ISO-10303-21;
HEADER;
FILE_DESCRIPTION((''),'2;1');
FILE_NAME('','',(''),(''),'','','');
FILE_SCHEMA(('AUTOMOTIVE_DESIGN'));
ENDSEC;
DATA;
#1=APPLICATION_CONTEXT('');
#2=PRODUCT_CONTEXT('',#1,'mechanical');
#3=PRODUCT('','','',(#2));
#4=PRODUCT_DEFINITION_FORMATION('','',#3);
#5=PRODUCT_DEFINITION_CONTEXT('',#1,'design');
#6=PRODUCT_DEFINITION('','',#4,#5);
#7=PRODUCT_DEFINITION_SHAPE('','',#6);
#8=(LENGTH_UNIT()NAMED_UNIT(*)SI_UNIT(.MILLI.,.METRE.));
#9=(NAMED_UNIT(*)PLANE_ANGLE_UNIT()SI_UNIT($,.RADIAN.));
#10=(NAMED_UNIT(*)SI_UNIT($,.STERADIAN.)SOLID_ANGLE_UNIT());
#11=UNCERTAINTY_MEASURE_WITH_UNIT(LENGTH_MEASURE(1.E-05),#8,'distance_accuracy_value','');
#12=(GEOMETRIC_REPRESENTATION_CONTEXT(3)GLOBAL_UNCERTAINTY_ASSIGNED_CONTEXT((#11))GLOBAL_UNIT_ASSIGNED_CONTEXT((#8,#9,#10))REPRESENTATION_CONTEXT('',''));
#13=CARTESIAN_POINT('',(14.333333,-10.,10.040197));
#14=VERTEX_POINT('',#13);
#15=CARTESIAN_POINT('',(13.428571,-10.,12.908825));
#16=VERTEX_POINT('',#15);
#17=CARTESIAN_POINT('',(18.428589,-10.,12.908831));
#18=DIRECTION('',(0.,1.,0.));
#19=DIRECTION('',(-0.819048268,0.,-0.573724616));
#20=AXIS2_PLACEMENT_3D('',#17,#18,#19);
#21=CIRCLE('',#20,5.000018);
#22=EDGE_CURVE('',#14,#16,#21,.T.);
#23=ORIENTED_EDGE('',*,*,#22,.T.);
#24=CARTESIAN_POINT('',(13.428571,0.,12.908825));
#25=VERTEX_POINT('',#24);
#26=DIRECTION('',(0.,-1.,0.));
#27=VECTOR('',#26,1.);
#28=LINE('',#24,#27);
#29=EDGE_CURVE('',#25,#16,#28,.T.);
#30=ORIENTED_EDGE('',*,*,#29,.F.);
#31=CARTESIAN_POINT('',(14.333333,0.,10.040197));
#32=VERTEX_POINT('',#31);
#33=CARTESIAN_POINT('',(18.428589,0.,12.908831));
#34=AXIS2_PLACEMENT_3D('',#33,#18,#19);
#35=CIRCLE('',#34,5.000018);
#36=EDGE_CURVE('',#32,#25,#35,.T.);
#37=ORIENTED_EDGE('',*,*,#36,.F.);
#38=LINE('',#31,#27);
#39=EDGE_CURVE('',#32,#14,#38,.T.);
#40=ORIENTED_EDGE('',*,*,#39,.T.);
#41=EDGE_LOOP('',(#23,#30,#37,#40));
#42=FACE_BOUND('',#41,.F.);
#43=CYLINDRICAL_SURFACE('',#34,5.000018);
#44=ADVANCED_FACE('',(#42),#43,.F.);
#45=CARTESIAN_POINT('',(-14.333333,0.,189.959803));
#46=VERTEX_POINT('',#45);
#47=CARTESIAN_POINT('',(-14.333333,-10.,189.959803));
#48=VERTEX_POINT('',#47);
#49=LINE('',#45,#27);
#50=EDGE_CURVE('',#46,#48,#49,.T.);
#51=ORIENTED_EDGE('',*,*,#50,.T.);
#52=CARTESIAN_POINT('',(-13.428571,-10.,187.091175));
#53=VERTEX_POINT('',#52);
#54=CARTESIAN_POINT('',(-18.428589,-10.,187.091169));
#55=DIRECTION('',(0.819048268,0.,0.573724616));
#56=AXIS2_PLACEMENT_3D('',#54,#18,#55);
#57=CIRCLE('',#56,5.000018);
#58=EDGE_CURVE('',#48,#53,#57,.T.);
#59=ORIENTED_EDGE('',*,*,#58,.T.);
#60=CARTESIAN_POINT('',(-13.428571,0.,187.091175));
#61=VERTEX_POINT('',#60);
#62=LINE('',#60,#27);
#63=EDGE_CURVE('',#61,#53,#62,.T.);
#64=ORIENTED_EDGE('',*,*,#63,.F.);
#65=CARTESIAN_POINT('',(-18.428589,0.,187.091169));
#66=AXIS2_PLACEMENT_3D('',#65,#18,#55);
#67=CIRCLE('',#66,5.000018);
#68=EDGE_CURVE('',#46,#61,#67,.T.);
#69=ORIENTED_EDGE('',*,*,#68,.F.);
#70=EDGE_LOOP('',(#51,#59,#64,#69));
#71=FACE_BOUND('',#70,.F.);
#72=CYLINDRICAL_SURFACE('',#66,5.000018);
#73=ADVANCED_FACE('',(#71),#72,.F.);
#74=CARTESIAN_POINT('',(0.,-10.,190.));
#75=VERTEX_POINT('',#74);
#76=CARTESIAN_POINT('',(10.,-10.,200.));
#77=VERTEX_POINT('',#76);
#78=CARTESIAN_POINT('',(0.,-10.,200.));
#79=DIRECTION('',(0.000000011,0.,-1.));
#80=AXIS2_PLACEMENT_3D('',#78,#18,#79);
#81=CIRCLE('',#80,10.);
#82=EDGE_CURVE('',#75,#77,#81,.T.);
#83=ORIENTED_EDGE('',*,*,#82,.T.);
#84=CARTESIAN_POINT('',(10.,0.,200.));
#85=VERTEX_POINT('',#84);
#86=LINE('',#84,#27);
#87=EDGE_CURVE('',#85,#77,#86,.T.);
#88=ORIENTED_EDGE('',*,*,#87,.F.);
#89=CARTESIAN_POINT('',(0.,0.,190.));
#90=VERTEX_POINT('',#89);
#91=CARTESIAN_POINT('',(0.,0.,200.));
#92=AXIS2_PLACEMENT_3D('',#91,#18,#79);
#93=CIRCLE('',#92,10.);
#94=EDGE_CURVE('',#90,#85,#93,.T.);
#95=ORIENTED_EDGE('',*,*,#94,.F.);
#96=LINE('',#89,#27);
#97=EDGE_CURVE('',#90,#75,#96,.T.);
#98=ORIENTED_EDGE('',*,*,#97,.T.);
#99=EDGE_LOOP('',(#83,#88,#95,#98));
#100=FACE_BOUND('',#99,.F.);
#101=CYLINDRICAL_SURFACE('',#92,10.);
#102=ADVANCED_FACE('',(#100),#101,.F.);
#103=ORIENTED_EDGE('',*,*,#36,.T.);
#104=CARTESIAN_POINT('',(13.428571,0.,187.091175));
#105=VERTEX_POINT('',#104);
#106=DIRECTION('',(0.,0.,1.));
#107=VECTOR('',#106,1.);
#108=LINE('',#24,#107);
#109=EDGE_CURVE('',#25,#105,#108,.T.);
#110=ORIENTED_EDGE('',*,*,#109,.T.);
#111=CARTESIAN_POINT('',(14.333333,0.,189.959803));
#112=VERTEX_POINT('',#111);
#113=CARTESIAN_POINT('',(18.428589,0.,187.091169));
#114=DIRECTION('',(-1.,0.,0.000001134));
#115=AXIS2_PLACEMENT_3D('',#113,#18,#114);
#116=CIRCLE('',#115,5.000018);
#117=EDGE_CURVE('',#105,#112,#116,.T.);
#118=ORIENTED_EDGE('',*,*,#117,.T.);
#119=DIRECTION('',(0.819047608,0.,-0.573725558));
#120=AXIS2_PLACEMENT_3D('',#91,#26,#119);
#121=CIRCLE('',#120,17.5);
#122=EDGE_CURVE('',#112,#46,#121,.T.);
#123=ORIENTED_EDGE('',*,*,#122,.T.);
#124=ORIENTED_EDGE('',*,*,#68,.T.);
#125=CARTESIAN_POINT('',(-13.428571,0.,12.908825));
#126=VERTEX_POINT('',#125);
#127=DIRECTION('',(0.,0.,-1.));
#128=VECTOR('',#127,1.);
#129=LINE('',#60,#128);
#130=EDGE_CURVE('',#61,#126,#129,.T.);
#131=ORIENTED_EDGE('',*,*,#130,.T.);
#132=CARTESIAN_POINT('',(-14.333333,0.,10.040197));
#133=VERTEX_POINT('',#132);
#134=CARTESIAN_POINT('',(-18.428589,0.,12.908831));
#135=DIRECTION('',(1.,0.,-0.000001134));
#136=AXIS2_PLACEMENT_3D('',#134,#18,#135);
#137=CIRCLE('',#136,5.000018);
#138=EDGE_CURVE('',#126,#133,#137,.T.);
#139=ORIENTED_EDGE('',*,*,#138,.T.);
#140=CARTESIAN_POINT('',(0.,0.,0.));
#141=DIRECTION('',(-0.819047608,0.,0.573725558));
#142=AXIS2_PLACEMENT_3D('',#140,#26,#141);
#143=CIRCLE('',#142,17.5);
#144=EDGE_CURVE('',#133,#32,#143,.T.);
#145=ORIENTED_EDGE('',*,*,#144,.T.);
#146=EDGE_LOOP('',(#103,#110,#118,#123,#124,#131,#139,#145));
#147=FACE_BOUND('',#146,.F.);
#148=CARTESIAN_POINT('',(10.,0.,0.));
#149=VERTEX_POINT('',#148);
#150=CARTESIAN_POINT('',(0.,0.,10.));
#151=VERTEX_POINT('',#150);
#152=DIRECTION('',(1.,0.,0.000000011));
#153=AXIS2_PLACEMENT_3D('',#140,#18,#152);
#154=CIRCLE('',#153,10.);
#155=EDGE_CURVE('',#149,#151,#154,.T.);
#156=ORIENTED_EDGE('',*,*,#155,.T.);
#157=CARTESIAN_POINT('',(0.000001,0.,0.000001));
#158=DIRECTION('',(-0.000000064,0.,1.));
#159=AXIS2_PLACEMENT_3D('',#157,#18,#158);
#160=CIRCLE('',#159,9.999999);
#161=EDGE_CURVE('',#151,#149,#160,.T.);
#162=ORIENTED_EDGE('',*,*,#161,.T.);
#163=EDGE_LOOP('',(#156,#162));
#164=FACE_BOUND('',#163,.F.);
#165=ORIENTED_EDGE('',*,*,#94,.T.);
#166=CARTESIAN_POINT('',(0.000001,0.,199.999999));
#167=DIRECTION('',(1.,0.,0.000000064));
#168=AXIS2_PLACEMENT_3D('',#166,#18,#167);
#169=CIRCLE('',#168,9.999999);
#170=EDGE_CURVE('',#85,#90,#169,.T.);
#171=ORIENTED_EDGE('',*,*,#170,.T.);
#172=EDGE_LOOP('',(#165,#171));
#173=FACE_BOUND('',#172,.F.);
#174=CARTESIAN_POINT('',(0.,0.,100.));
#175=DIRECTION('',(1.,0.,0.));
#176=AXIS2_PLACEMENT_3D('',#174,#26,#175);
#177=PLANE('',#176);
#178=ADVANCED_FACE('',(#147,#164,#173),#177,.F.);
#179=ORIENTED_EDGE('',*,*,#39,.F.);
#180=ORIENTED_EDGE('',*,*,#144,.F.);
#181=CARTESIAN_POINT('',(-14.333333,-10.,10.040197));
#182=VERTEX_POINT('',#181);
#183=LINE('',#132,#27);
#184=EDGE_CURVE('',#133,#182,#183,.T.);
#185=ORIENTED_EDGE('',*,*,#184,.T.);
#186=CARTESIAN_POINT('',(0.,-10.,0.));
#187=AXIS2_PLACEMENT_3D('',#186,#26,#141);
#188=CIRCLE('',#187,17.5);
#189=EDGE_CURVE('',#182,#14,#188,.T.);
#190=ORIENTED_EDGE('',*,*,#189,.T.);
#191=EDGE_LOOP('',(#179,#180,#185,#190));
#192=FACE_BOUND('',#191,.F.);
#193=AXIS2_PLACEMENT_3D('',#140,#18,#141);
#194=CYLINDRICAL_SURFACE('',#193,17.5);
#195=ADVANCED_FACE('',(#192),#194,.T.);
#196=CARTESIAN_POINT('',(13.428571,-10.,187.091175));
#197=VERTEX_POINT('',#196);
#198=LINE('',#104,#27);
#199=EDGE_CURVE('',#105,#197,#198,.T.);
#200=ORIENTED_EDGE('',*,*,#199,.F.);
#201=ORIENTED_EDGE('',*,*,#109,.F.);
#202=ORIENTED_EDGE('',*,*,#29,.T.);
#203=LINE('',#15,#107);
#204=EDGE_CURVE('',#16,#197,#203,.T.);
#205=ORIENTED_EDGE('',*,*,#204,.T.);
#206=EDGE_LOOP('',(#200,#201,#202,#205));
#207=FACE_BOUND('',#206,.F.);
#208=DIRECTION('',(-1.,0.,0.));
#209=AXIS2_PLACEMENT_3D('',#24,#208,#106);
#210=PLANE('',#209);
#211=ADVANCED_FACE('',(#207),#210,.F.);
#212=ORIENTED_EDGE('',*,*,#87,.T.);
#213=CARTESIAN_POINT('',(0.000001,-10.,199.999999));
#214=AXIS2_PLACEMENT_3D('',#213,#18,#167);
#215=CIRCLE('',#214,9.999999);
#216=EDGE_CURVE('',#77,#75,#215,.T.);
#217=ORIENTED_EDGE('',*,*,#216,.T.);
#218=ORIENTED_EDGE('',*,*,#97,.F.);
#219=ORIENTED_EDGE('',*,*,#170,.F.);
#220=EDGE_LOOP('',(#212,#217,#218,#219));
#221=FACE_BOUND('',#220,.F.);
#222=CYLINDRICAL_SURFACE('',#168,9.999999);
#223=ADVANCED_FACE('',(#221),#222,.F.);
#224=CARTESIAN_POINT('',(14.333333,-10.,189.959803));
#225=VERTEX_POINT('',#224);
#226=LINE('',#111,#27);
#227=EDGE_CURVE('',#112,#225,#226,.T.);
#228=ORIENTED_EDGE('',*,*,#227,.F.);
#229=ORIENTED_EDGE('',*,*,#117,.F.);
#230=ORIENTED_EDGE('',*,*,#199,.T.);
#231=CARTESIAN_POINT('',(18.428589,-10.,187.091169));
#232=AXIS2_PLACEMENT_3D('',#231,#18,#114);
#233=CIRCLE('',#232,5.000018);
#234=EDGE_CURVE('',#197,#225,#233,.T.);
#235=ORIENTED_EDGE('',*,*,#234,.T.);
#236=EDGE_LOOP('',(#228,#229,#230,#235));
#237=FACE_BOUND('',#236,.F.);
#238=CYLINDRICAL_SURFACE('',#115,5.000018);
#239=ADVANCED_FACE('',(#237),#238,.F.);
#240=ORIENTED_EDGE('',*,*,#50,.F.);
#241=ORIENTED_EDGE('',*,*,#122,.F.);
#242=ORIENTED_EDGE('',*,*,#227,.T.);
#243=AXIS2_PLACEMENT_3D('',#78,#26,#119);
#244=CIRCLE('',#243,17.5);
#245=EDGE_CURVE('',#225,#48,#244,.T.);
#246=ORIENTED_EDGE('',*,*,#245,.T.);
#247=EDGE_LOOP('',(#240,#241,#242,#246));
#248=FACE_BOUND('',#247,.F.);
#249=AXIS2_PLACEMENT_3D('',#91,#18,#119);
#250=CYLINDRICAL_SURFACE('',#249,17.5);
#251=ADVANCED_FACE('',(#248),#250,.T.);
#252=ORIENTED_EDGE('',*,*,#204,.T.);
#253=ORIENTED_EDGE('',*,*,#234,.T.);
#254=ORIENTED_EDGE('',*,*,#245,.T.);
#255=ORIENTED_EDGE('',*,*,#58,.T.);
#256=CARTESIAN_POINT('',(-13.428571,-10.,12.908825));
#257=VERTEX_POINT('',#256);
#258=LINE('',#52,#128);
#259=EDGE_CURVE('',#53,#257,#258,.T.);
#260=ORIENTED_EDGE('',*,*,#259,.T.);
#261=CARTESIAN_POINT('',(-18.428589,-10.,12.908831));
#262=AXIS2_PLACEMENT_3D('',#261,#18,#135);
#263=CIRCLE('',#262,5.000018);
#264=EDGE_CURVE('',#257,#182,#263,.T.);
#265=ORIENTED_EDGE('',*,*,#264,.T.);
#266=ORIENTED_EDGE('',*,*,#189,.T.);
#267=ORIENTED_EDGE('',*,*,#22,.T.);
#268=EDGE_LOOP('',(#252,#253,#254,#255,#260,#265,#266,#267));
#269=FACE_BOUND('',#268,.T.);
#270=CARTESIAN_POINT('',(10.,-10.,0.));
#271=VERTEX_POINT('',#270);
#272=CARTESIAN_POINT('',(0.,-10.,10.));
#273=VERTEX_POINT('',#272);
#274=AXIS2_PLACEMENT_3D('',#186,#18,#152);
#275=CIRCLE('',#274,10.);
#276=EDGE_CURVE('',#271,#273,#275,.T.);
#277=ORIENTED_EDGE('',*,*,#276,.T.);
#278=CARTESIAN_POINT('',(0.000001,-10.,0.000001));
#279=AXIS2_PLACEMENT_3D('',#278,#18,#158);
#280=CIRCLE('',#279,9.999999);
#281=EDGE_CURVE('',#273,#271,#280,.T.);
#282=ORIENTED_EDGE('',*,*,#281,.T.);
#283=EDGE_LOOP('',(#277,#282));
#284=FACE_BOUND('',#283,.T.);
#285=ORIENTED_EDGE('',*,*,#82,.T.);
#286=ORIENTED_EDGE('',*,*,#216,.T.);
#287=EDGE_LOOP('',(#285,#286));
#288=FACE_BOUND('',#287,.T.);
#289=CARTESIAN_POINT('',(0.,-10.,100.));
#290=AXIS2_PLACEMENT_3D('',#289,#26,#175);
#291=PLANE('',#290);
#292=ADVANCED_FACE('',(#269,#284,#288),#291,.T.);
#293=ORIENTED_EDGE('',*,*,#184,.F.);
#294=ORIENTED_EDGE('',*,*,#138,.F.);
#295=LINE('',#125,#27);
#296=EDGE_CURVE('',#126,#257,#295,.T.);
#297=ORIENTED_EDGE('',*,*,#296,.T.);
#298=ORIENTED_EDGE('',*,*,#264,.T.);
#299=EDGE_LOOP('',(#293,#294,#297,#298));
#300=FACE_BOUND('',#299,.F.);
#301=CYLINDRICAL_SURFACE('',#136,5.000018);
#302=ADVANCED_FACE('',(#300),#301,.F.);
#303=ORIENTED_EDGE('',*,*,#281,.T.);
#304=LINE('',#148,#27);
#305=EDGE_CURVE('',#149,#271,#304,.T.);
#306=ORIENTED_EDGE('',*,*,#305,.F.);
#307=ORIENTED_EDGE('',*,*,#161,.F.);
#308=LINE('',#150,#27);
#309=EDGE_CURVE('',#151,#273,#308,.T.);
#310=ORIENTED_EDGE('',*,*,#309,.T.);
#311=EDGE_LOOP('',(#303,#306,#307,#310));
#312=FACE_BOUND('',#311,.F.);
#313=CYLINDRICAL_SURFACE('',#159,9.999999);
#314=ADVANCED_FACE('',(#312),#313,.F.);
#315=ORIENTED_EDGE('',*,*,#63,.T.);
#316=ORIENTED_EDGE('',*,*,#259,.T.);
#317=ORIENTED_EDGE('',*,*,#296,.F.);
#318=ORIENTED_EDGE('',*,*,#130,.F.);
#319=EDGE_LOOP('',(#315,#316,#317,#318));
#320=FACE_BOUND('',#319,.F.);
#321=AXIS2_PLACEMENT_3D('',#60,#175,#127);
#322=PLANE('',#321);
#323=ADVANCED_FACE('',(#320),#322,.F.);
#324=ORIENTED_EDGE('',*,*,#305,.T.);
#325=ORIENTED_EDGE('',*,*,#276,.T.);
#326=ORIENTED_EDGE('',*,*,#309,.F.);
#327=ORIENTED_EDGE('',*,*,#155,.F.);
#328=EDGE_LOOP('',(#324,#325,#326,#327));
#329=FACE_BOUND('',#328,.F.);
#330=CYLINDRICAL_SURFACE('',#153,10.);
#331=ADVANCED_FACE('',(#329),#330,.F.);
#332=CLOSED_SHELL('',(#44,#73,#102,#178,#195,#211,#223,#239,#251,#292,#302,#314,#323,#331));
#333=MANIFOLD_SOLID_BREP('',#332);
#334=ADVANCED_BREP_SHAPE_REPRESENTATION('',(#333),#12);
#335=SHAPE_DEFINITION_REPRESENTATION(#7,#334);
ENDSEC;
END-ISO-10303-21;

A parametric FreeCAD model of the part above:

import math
import FreeCAD as App
import Part
import Sketcher
Q = App.Units.Quantity

doc = App.newDocument("Part")
body = doc.addObject("PartDesign::Body", "Body")

# Sketch on XZ plane
sketch1 = doc.addObject("Sketcher::SketchObject", "Sketch")
body.addObject(sketch1)
sketch1.AttachmentSupport = (doc.XZ_Plane, [""])
sketch1.MapMode = "FlatFace"
sketch1.addGeometry(Part.ArcOfCircle(Part.Circle(App.Vector(18.428589, 187.091169, 0), App.Vector(0, 0, 1), 5.000018), math.radians(144.989635), math.radians(179.999935)), False)
sketch1.addGeometry(Part.ArcOfCircle(Part.Circle(App.Vector(0, 200, 0), App.Vector(0, 0, 1), 17.5), math.radians(-35.010431), math.radians(215.010431)), False)
sketch1.addGeometry(Part.ArcOfCircle(Part.Circle(App.Vector(-18.428589, 187.091169, 0), App.Vector(0, 0, 1), 5.000018), math.radians(0.000065), math.radians(35.010365)), False)
sketch1.addGeometry(Part.LineSegment(App.Vector(-13.428571, 187.091175, 0), App.Vector(-13.428571, 12.908825, 0)), False)
sketch1.addGeometry(Part.ArcOfCircle(Part.Circle(App.Vector(-18.428589, 12.908831, 0), App.Vector(0, 0, 1), 5.000018), math.radians(-35.010365), math.radians(-0.000065)), False)
sketch1.addGeometry(Part.ArcOfCircle(Part.Circle(App.Vector(0, 0, 0), App.Vector(0, 0, 1), 17.5), math.radians(144.989569), math.radians(395.010431)), False)
sketch1.addGeometry(Part.ArcOfCircle(Part.Circle(App.Vector(18.428589, 12.908831, 0), App.Vector(0, 0, 1), 5.000018), math.radians(-179.999935), math.radians(-144.989635)), False)
sketch1.addGeometry(Part.LineSegment(App.Vector(13.428571, 12.908825, 0), App.Vector(13.428571, 187.091175, 0)), False)
sketch1.addGeometry(Part.ArcOfCircle(Part.Circle(App.Vector(0, 0, 0), App.Vector(0, 0, 1), 10), math.radians(89.999999), math.radians(360.000001)), False)
sketch1.addGeometry(Part.ArcOfCircle(Part.Circle(App.Vector(0.000001, 0.000001, 0), App.Vector(0, 0, 1), 9.999999), math.radians(-0.000004), math.radians(90.000004)), False)
sketch1.addGeometry(Part.ArcOfCircle(Part.Circle(App.Vector(0, 200, 0), App.Vector(0, 0, 1), 10), math.radians(-0.000001), math.radians(270.000001)), False)
sketch1.addGeometry(Part.ArcOfCircle(Part.Circle(App.Vector(0.000001, 199.999999, 0), App.Vector(0, 0, 1), 9.999999), math.radians(-90.000004), math.radians(0.000004)), False)
sketch1.addConstraint(Sketcher.Constraint("Tangent", 0, 1, 1, 1))
sketch1.addConstraint(Sketcher.Constraint("Tangent", 1, 2, 2, 2))
sketch1.addConstraint(Sketcher.Constraint("Tangent", 2, 1, 3, 1))
sketch1.addConstraint(Sketcher.Constraint("Tangent", 3, 2, 4, 2))
sketch1.addConstraint(Sketcher.Constraint("Tangent", 4, 1, 5, 1))
sketch1.addConstraint(Sketcher.Constraint("Tangent", 5, 2, 6, 2))
sketch1.addConstraint(Sketcher.Constraint("Tangent", 6, 1, 7, 1))
sketch1.addConstraint(Sketcher.Constraint("Tangent", 7, 2, 0, 2))
sketch1.addConstraint(Sketcher.Constraint("Tangent", 8, 1, 9, 2))
sketch1.addConstraint(Sketcher.Constraint("Coincident", 9, 1, 8, 2))
sketch1.addConstraint(Sketcher.Constraint("Tangent", 10, 1, 11, 2))
sketch1.addConstraint(Sketcher.Constraint("Coincident", 11, 1, 10, 2))
sketch1.addConstraint(Sketcher.Constraint("Vertical", 3))
sketch1.addConstraint(Sketcher.Constraint("Vertical", 7))
sketch1.addConstraint(Sketcher.Constraint("Coincident", 5, 3, -1, 1))
sketch1.addConstraint(Sketcher.Constraint("Coincident", 8, 3, -1, 1))
sketch1.addConstraint(Sketcher.Constraint("Coincident", 10, 3, 1, 3))
sketch1.addConstraint(Sketcher.Constraint("Equal", 0, 2))
sketch1.addConstraint(Sketcher.Constraint("Equal", 2, 4))
sketch1.addConstraint(Sketcher.Constraint("Equal", 1, 5))
sketch1.addConstraint(Sketcher.Constraint("Equal", 4, 6))
sketch1.addConstraint(Sketcher.Constraint("Equal", 9, 10))
sketch1.addConstraint(Sketcher.Constraint("Symmetric", 0, 3, 2, 3, -2))
sketch1.addConstraint(Sketcher.Constraint("PointOnObject", 8, 1, -2))
sketch1.addConstraint(Sketcher.Constraint("PointOnObject", 9, 1, -1))
sketch1.addConstraint(Sketcher.Constraint("PointOnObject", 11, 1, -2))
sketch1.addConstraint(Sketcher.Constraint("Horizontal", 11, 3, 10, 1))
sketch1.addConstraint(Sketcher.Constraint("Radius", 8, Q("10 mm")))
sketch1.addConstraint(Sketcher.Constraint("Radius", 1, Q("17.5 mm")))
sketch1.addConstraint(Sketcher.Constraint("DistanceY", -1, 1, 1, 3, Q("200 mm")))
sketch1.addConstraint(Sketcher.Constraint("Radius", 0, Q("5.000018 mm")))
sketch1.addConstraint(Sketcher.Constraint("DistanceY", 3, 2, 3, 1, Q("174.18235 mm")))
pad1 = doc.addObject("PartDesign::Pad", "Pad")
body.addObject(pad1)
pad1.Profile = sketch1
pad1.Length = 10

doc.recompute()
